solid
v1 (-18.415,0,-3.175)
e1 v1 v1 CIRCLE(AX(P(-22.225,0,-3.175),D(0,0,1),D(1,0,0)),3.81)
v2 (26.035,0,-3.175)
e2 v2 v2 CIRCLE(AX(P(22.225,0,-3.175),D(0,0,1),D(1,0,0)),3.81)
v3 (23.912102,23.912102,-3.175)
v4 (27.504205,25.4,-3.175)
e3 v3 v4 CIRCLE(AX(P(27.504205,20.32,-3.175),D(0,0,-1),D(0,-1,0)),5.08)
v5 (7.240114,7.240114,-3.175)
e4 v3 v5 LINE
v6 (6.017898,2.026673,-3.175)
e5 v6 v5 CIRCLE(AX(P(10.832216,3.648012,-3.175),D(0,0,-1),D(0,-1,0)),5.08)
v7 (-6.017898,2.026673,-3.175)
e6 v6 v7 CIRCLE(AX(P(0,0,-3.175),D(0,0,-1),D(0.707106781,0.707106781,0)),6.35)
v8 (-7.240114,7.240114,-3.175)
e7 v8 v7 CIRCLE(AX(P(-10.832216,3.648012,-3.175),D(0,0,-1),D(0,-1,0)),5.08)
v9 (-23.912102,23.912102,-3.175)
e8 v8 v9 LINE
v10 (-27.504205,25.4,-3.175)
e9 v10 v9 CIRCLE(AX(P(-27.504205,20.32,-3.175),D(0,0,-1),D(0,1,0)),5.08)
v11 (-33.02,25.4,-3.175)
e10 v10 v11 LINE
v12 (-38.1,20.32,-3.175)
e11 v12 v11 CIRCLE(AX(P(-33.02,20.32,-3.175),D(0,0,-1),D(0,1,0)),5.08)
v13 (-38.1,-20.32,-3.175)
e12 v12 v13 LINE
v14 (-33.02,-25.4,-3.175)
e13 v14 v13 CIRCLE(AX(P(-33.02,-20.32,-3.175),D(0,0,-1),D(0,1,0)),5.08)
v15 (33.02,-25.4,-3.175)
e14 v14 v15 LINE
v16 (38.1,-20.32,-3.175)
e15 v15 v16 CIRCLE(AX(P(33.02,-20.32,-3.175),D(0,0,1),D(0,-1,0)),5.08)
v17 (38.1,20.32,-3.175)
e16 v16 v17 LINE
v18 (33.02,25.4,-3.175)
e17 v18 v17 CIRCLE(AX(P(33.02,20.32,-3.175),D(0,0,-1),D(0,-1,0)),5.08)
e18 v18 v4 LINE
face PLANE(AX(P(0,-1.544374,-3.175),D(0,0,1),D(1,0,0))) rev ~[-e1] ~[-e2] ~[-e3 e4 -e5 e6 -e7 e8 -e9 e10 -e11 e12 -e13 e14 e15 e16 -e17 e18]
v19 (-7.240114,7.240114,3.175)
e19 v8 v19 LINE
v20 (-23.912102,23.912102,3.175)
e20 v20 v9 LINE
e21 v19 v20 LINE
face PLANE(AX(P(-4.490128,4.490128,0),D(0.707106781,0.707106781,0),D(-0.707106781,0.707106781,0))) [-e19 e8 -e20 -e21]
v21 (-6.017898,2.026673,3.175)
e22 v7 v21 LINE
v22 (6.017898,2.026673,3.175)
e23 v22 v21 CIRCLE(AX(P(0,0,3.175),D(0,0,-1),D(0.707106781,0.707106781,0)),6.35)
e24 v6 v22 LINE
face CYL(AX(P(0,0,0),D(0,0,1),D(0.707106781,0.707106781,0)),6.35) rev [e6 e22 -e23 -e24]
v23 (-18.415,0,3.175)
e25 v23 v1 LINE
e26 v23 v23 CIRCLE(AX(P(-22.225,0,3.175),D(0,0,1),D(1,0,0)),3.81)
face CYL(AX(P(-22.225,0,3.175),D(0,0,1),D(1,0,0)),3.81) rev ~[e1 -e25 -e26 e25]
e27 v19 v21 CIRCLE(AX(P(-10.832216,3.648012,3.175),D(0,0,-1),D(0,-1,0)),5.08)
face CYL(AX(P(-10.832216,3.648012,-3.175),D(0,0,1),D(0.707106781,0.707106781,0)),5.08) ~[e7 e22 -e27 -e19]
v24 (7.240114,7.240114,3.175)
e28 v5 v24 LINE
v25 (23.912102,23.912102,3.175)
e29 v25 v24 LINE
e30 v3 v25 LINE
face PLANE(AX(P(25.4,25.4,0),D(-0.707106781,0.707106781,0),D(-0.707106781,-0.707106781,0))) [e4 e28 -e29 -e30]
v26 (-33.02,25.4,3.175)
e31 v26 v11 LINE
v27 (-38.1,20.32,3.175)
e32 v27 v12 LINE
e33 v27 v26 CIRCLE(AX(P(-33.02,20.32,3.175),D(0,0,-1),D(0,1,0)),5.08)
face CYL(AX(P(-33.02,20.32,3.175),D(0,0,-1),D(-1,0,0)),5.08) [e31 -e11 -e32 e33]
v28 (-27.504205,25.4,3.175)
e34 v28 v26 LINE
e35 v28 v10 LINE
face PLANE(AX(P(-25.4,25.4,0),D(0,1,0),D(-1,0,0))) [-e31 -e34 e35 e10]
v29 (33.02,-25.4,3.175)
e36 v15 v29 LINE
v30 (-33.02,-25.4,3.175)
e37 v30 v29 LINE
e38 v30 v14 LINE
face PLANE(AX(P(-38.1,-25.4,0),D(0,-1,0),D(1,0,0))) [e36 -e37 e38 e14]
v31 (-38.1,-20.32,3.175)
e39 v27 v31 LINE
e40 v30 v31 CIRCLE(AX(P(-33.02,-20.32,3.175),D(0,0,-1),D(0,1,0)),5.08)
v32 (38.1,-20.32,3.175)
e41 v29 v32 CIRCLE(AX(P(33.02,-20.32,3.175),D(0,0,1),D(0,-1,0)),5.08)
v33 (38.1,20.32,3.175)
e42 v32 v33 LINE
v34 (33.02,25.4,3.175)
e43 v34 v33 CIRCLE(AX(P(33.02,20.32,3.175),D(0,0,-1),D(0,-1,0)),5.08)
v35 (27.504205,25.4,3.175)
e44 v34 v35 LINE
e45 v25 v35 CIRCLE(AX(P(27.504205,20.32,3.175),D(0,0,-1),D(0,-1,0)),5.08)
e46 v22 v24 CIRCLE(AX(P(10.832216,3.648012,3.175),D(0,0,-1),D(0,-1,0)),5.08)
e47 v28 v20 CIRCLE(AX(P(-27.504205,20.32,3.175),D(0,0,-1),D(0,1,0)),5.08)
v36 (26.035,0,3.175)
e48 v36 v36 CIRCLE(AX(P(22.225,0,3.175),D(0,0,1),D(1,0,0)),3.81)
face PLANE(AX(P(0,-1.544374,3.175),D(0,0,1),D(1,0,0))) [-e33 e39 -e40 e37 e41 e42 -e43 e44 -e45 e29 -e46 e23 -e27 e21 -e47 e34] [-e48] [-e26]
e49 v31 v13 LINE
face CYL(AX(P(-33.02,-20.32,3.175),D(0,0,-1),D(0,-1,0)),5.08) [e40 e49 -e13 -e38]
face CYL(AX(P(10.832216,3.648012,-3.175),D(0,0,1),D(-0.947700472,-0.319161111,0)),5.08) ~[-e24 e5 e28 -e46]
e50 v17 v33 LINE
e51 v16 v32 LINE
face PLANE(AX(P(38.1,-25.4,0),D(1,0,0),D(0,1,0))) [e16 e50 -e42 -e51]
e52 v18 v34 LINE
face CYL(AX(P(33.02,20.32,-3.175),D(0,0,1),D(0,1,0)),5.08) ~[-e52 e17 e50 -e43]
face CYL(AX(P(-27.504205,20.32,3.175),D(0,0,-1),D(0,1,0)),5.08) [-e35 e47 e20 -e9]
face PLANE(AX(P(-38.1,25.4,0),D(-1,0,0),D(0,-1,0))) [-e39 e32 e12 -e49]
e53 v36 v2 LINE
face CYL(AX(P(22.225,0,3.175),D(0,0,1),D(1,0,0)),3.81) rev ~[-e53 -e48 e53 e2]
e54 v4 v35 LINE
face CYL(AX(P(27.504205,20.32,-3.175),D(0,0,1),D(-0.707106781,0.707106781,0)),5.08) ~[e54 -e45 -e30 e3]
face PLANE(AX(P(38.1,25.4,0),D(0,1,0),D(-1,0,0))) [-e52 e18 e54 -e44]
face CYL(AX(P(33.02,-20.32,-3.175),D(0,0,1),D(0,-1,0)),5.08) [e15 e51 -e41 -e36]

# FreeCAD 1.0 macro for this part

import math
import FreeCAD as App
import Part
import Sketcher
Q = App.Units.Quantity


def edges_at(feature, points):
    """Names of the edges that pass closest to the given points."""
    edges = feature.Shape.Edges
    near = lambda p: min(range(len(edges)), key=lambda i: edges[i].distToShape(Part.Vertex(*p))[0])
    return sorted({f"Edge{near(p) + 1}" for p in points})

doc = App.newDocument("Part")
body = doc.addObject("PartDesign::Body", "Body")

sketch1 = doc.addObject("Sketcher::SketchObject", "Sketch")
body.addObject(sketch1)
sketch1.AttachmentSupport = (doc.XY_Plane, [""])
sketch1.MapMode = "FlatFace"
sketch1.addGeometry([
    Part.LineSegment(App.Vector(-38, -25, 0), App.Vector(38, -25, 0)),
    Part.LineSegment(App.Vector(38, -25, 0), App.Vector(38, 25, 0)),
    Part.LineSegment(App.Vector(38, 25, 0), App.Vector(25, 25, 0)),
    Part.LineSegment(App.Vector(25, 25, 0), App.Vector(4, 4, 0)),
    Part.ArcOfCircle(Part.Circle(App.Vector(0, 0, 0), App.Vector(0, 0, 1), 6), math.radians(135), math.radians(405)),
    Part.LineSegment(App.Vector(-4, 4, 0), App.Vector(-25, 25, 0)),
    Part.LineSegment(App.Vector(-25, 25, 0), App.Vector(-38, 25, 0)),
    Part.LineSegment(App.Vector(-38, 25, 0), App.Vector(-38, -25, 0)),
], False)
sketch1.addConstraint([
    Sketcher.Constraint("Coincident", 0, 2, 1, 1),
    Sketcher.Constraint("Coincident", 1, 2, 2, 1),
    Sketcher.Constraint("Coincident", 2, 2, 3, 1),
    Sketcher.Constraint("Coincident", 3, 2, 4, 2),
    Sketcher.Constraint("Coincident", 4, 1, 5, 1),
    Sketcher.Constraint("Coincident", 5, 2, 6, 1),
    Sketcher.Constraint("Coincident", 6, 2, 7, 1),
    Sketcher.Constraint("Coincident", 7, 2, 0, 1),
    Sketcher.Constraint("Horizontal", 0),
    Sketcher.Constraint("Vertical", 1),
    Sketcher.Constraint("Horizontal", 2),
    Sketcher.Constraint("Horizontal", 6),
    Sketcher.Constraint("Vertical", 7),
    Sketcher.Constraint("Coincident", 4, 3, -1, 1),
    Sketcher.Constraint("Symmetric", 0, 2, 6, 2, -1, 1),
    Sketcher.Constraint("Symmetric", 2, 2, 5, 2, -2),
    Sketcher.Constraint("Perpendicular", 3, 5),
    Sketcher.Constraint("Horizontal", 3, 2, 4, 1),
    Sketcher.Constraint("DistanceX", 0, 1, 0, 2, Q("3 in")),
    Sketcher.Constraint("DistanceY", 1, 1, 1, 2, Q("2 in")),
    Sketcher.Constraint("Radius", 4, Q("0.25 in")),
    Sketcher.Constraint("DistanceX", 2, 2, 2, 1, Q("0.5 in")),
])
pad1 = doc.addObject("PartDesign::Pad", "Pad")
body.addObject(pad1)
pad1.Profile = sketch1
pad1.Length = Q("0.25 in")
pad1.Midplane = True
doc.recompute()

fillet = doc.addObject("PartDesign::Fillet", "Fillet")
body.addObject(fillet)
fillet.Base = (pad1, edges_at(pad1, [
    (4.49, 4.49, 0),
    (-4.49, 4.49, 0),
    (-25.4, 25.4, 0),
    (-38.1, 25.4, 0),
    (-38.1, -25.4, 0),
    (38.1, 25.4, 0),
    (25.4, 25.4, 0),
    (38.1, -25.4, 0),
]))
fillet.Radius = Q("0.2 in")

sketch2 = doc.addObject("Sketcher::SketchObject", "Sketch001")
body.addObject(sketch2)
sketch2.AttachmentSupport = (doc.XY_Plane, [""])
sketch2.MapMode = "FlatFace"
sketch2.AttachmentOffset = App.Placement(App.Vector(0, 0, 0.125 * 25.4), App.Rotation())
sketch2.addGeometry([
    Part.Circle(App.Vector(-22.2, 0, 0), App.Vector(0, 0, 1), 3.8),
    Part.Circle(App.Vector(22.2, 0, 0), App.Vector(0, 0, 1), 3.8),
], False)
sketch2.addConstraint([
    Sketcher.Constraint("Equal", 0, 1),
    Sketcher.Constraint("Symmetric", 0, 3, 1, 3, -1, 1),
    Sketcher.Constraint("PointOnObject", 0, 3, -1),
    Sketcher.Constraint("Diameter", 0, Q("0.3 in")),
    Sketcher.Constraint("DistanceX", 0, 3, 1, 3, Q("1.75 in")),
])
pocket1 = doc.addObject("PartDesign::Pocket", "Pocket")
body.addObject(pocket1)
pocket1.Profile = sketch2
pocket1.Length = Q("1 in")

doc.recompute()
